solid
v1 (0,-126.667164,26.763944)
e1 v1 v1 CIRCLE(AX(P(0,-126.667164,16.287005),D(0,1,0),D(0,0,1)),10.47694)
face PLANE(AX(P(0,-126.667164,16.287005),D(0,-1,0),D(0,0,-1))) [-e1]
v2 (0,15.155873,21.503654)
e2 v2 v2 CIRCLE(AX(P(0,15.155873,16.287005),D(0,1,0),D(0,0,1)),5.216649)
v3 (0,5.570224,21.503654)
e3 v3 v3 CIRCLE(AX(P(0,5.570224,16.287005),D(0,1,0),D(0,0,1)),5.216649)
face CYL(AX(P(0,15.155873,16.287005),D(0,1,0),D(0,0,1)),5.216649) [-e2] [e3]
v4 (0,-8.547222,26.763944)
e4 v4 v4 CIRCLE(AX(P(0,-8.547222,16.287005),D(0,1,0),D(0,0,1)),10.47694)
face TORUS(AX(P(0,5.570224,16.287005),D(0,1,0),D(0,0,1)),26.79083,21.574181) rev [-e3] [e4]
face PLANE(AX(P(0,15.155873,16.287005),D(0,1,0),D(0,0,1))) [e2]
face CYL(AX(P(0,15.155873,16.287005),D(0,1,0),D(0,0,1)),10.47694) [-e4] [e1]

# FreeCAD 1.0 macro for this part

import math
import FreeCAD as App
import Part
import Sketcher
from FreeCAD import Vector

doc = App.newDocument("Part")
params = doc.addObject("Spreadsheet::Sheet", "Params")
for row, (alias, value) in enumerate([
    ("revolution_angle", "360 deg"),
], start=1):
    params.set(f"A{row}", alias)
    params.set(f"B{row}", "=" + value)
    params.setAlias(f"B{row}", alias)

body = doc.addObject("PartDesign::Body", "Body")

# Sketch on YZ plane
sketch1 = doc.addObject("Sketcher::SketchObject", "Sketch")
body.addObject(sketch1)
sketch1.AttachmentSupport = (doc.YZ_Plane, [""])
sketch1.MapMode = "FlatFace"
sketch1.addGeometry(Part.LineSegment(Vector(-127, 16, 0), Vector(15, 16, 0)), False)
sketch1.addGeometry(Part.LineSegment(Vector(15, 16, 0), Vector(15, 22, 0)), False)
sketch1.addGeometry(Part.LineSegment(Vector(15, 22, 0), Vector(6, 22, 0)), False)
sketch1.addGeometry(Part.ArcOfCircle(Part.Circle(Vector(6, 43, 0), Vector(0, 0, 1), 22), math.radians(-131), math.radians(-90)), False)
sketch1.addGeometry(Part.LineSegment(Vector(-9, 27, 0), Vector(-127, 27, 0)), False)
sketch1.addGeometry(Part.LineSegment(Vector(-127, 27, 0), Vector(-127, 16, 0)), False)
sketch1.addGeometry(Part.LineSegment(Vector(15, 16, 0), Vector(-127, 16, 0)), True)  # axis
sketch1.addConstraint(Sketcher.Constraint("Coincident", 0, 2, 1, 1))
sketch1.addConstraint(Sketcher.Constraint("Coincident", 1, 2, 2, 1))
sketch1.addConstraint(Sketcher.Constraint("Tangent", 2, 2, 3, 2))
sketch1.addConstraint(Sketcher.Constraint("Coincident", 3, 1, 4, 1))
sketch1.addConstraint(Sketcher.Constraint("Coincident", 4, 2, 5, 1))
sketch1.addConstraint(Sketcher.Constraint("Coincident", 5, 2, 0, 1))
sketch1.addConstraint(Sketcher.Constraint("Horizontal", 0))
sketch1.addConstraint(Sketcher.Constraint("Vertical", 1))
sketch1.addConstraint(Sketcher.Constraint("Horizontal", 2))
sketch1.addConstraint(Sketcher.Constraint("Horizontal", 4))
sketch1.addConstraint(Sketcher.Constraint("Vertical", 5))
sketch1.addConstraint(Sketcher.Constraint("Horizontal", 6))
sketch1.addConstraint(Sketcher.Constraint("Coincident", 6, 1, 0, 2))
sketch1.addConstraint(Sketcher.Constraint("Vertical", 4, 2, 6, 2))
sketch1.addConstraint(Sketcher.Constraint("Radius", 3, 21.574181))
sketch1.addConstraint(Sketcher.Constraint("DistanceX", 2, 2, 2, 1, 9.58565))
sketch1.addConstraint(Sketcher.Constraint("DistanceY", 1, 1, 1, 2, 5.216649))
sketch1.addConstraint(Sketcher.Constraint("DistanceY", 5, 2, 5, 1, 10.47694))
sketch1.addConstraint(Sketcher.Constraint("DistanceX", 0, 1, 0, 2, 141.823037))
sketch1.addConstraint(Sketcher.Constraint("DistanceX", 3, 1, -1, 1, 8.547222))
sketch1.addConstraint(Sketcher.Constraint("DistanceY", -1, 1, 3, 3, 43.077835))
revolution = doc.addObject("PartDesign::Revolution", "Revolution")
body.addObject(revolution)
revolution.Profile = sketch1
revolution.ReferenceAxis = (sketch1, ["Axis0"])
revolution.setExpression("Angle", "Params.revolution_angle")

doc.recompute()
